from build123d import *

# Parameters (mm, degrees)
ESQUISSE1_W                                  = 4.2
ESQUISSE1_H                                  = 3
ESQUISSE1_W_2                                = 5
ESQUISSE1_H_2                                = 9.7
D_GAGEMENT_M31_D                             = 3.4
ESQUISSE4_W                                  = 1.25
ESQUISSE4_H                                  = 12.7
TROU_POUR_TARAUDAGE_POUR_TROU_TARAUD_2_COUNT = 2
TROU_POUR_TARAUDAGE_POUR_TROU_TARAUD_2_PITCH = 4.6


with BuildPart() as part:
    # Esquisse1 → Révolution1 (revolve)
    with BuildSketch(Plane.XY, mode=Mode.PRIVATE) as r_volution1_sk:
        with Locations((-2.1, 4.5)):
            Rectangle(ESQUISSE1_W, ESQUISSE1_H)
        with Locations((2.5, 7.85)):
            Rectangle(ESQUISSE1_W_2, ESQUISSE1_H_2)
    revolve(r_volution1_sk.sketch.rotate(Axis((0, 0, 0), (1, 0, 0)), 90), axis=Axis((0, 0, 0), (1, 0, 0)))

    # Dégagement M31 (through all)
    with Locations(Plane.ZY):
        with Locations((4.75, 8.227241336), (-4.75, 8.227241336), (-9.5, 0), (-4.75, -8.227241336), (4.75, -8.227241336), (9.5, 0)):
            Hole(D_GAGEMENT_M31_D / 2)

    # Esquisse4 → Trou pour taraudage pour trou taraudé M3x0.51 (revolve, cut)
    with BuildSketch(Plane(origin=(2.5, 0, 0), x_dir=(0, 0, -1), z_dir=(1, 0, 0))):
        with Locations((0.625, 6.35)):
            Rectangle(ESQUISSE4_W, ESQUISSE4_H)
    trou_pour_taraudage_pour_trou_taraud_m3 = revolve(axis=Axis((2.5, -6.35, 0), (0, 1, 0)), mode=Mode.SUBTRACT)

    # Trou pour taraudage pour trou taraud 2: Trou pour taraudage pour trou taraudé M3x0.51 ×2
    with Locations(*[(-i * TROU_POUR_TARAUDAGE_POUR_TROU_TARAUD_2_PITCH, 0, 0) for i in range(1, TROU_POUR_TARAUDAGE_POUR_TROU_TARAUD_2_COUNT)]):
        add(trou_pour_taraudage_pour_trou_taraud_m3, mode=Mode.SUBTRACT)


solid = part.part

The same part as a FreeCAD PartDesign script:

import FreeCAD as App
import Part
import Sketcher

doc = App.newDocument("Part")
body = doc.addObject("PartDesign::Body", "Body")

sketch1 = body.newObject("Sketcher::SketchObject", "Sketch")
sketch1.AttachmentSupport = (doc.getObject("XY_Plane"), [""])
sketch1.MapMode = "FlatFace"
sketch1.addGeometry([
    Part.LineSegment(App.Vector(-4.2, 6, 0), App.Vector(-4.2, 3, 0)),
    Part.LineSegment(App.Vector(-4.2, 3, 0), App.Vector(5, 3, 0)),
    Part.LineSegment(App.Vector(5, 3, 0), App.Vector(5, 12.7, 0)),
    Part.LineSegment(App.Vector(5, 12.7, 0), App.Vector(0, 12.7, 0)),
    Part.LineSegment(App.Vector(0, 12.7, 0), App.Vector(0, 6, 0)),
    Part.LineSegment(App.Vector(0, 6, 0), App.Vector(-4.2, 6, 0)),
], False)
sketch1.addConstraint([
    Sketcher.Constraint("Coincident", 0, 2, 1, 1),
    Sketcher.Constraint("Coincident", 1, 2, 2, 1),
    Sketcher.Constraint("Coincident", 2, 2, 3, 1),
    Sketcher.Constraint("Coincident", 3, 2, 4, 1),
    Sketcher.Constraint("Coincident", 4, 2, 5, 1),
    Sketcher.Constraint("Coincident", 5, 2, 0, 1),
    Sketcher.Constraint("Vertical", 0),
    Sketcher.Constraint("Horizontal", 1),
    Sketcher.Constraint("Vertical", 2),
    Sketcher.Constraint("Horizontal", 3),
    Sketcher.Constraint("Vertical", 4),
    Sketcher.Constraint("Horizontal", 5),
    Sketcher.Constraint("PointOnObject", 3, 2, -2),
    Sketcher.Constraint("DistanceX", 3, 2, 3, 1, 5.0),
    Sketcher.Constraint("DistanceY", 0, 2, 0, 1, 3.0),
    Sketcher.Constraint("DistanceX", 1, 1, 1, 2, 9.2),
    Sketcher.Constraint("DistanceY", 2, 1, 2, 2, 9.7),
    Sketcher.Constraint("DistanceY", -1, 1, 0, 2, 3.0),
])
revolution = body.newObject("PartDesign::Revolution", "Revolution")
revolution.Profile = sketch1
revolution.ReferenceAxis = (sketch1, ["H_Axis"])
revolution.Angle = 360

sketch2 = body.newObject("Sketcher::SketchObject", "Sketch001")
sketch2.AttachmentSupport = (doc.getObject("YZ_Plane"), [""])
sketch2.MapMode = "FlatFace"
sketch2.addGeometry([
    Part.Circle(App.Vector(8.2, 4.8, 0), App.Vector(0, 0, 1), 1.7),
    Part.Circle(App.Vector(8.2, -4.8, 0), App.Vector(0, 0, 1), 1.7),
    Part.Circle(App.Vector(0, -9.5, 0), App.Vector(0, 0, 1), 1.7),
    Part.Circle(App.Vector(-8.2, -4.8, 0), App.Vector(0, 0, 1), 1.7),
    Part.Circle(App.Vector(-8.2, 4.8, 0), App.Vector(0, 0, 1), 1.7),
    Part.Circle(App.Vector(0, 9.5, 0), App.Vector(0, 0, 1), 1.7),
], False)
sketch2.addConstraint([
    Sketcher.Constraint("Equal", 0, 1),
    Sketcher.Constraint("Equal", 1, 2),
    Sketcher.Constraint("Equal", 2, 3),
    Sketcher.Constraint("Equal", 3, 4),
    Sketcher.Constraint("Equal", 4, 5),
    Sketcher.Constraint("Symmetric", 0, 3, 3, 3, -1, 1),
    Sketcher.Constraint("Symmetric", 1, 3, 4, 3, -1, 1),
    Sketcher.Constraint("Symmetric", 2, 3, 5, 3, -1, 1),
    Sketcher.Constraint("Symmetric", 1, 3, 3, 3, -2),
    Sketcher.Constraint("PointOnObject", 2, 3, -2),
    Sketcher.Constraint("Diameter", 0, 3.4),
    Sketcher.Constraint("DistanceY", 2, 3, 5, 3, 19.0),
    Sketcher.Constraint("DistanceY", 1, 3, 0, 3, 9.5),
    Sketcher.Constraint("DistanceX", -1, 1, 0, 3, 8.227241),
])
doc.recompute()
hole = body.newObject("PartDesign::Hole", "Hole")
hole.Profile = sketch2
hole.ThreadType = "None"
hole.Diameter = 3.4
hole.DepthType = "ThroughAll"
hole.Reversed = True

sketch3 = body.newObject("Sketcher::SketchObject", "Sketch002")
sketch3.AttachmentSupport = (doc.getObject("YZ_Plane"), [""])
sketch3.MapMode = "FlatFace"
sketch3.AttachmentOffset = App.Placement(App.Vector(0, 0, 2.5), App.Rotation())
sketch3.addGeometry([
    Part.LineSegment(App.Vector(12.7, 0, 0), App.Vector(0, 0, 0)),
    Part.LineSegment(App.Vector(0, 0, 0), App.Vector(0, -1.2, 0)),
    Part.LineSegment(App.Vector(0, -1.2, 0), App.Vector(12.7, -1.2, 0)),
    Part.LineSegment(App.Vector(12.7, -1.2, 0), App.Vector(12.7, 0, 0)),
], False)
sketch3.addConstraint([
    Sketcher.Constraint("Coincident", 0, 2, 1, 1),
    Sketcher.Constraint("Coincident", 1, 2, 2, 1),
    Sketcher.Constraint("Coincident", 2, 2, 3, 1),
    Sketcher.Constraint("Coincident", 3, 2, 0, 1),
    Sketcher.Constraint("Horizontal", 0),
    Sketcher.Constraint("Vertical", 1),
    Sketcher.Constraint("Horizontal", 2),
    Sketcher.Constraint("Vertical", 3),
    Sketcher.Constraint("Coincident", 0, 2, -1, 1),
    Sketcher.Constraint("DistanceX", 0, 2, 0, 1, 12.7),
    Sketcher.Constraint("DistanceY", 1, 2, 1, 1, 1.25),
])
groove = body.newObject("PartDesign::Groove", "Groove")
groove.Profile = sketch3
groove.ReferenceAxis = (sketch3, ["H_Axis"])
groove.Angle = 360
doc.recompute()

linearpattern = body.newObject("PartDesign::LinearPattern", "LinearPattern")
linearpattern.Originals = [groove]
linearpattern.Direction = (doc.getObject("X_Axis"), [""])
linearpattern.Mode = "offset"
linearpattern.Offset = 4.6
linearpattern.Occurrences = 2
linearpattern.Reversed = True
body.Tip = linearpattern

doc.recompute()
